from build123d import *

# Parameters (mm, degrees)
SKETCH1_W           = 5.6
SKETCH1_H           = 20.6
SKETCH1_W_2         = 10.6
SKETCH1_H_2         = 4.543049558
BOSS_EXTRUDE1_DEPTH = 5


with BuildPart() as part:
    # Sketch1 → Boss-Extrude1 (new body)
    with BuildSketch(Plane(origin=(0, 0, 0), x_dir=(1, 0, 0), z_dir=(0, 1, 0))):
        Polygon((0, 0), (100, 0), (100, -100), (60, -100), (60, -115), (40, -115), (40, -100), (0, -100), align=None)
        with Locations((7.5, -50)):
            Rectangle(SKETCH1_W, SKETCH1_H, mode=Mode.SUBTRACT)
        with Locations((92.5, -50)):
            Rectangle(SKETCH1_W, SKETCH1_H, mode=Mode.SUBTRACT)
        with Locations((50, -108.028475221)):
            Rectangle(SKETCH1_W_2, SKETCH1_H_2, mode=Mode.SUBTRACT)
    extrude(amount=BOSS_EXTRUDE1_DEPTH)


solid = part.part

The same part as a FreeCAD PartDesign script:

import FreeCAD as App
import Part
import Sketcher

V = App.Vector


def add_polygon(sketch, points):
    """Adds a closed chain of lines whose ends are joined by coincident constraints."""
    first, n = sketch.GeometryCount, len(points)
    for a, b in zip(points, points[1:] + points[:1]):
        sketch.addGeometry(Part.LineSegment(App.Vector(*a, 0), App.Vector(*b, 0)), False)
    for i in range(n):
        sketch.addConstraint(Sketcher.Constraint("Coincident", first + i, 2, first + (i + 1) % n, 1))

doc = App.newDocument("Part")
params = doc.addObject("Spreadsheet::Sheet", "Params")
for row, (alias, value) in enumerate([
    ("sketch1_width", "100 mm"),
    ("sketch1_width2", "40 mm"),
    ("sketch1_height", "15 mm"),
    ("sketch1_width3", "10.6 mm"),
    ("sketch1_width4", "5.6 mm"),
    ("pad1_length", "5 mm"),
], start=1):
    params.set(f"A{row}", alias)
    params.set(f"B{row}", "=" + value)
    params.setAlias(f"B{row}", alias)

body = doc.addObject("PartDesign::Body", "Body")

sketch1 = body.newObject("Sketcher::SketchObject", "Sketch")
sketch1.AttachmentSupport = (doc.getObject("XZ_Plane"), [""])
sketch1.MapMode = "FlatFace"
add_polygon(sketch1, [(100, 0), (0, 0), (0, 100), (40, 100), (40, 115), (60, 115), (60, 100), (100, 100)])
add_polygon(sketch1, [(44.7, 110.3), (44.7, 105.8), (55.3, 105.8), (55.3, 110.3)])
add_polygon(sketch1, [(89.7, 60.3), (89.7, 39.7), (95.3, 39.7), (95.3, 60.3)])
add_polygon(sketch1, [(4.7, 60.3), (4.7, 39.7), (10.3, 39.7), (10.3, 60.3)])
sketch1.addConstraint([
    Sketcher.Constraint("Horizontal", 0),
    Sketcher.Constraint("Vertical", 1),
    Sketcher.Constraint("Horizontal", 2),
    Sketcher.Constraint("Vertical", 3),
    Sketcher.Constraint("Horizontal", 4),
    Sketcher.Constraint("Vertical", 5),
    Sketcher.Constraint("Horizontal", 6),
    Sketcher.Constraint("Vertical", 7),
    Sketcher.Constraint("Vertical", 8),
    Sketcher.Constraint("Horizontal", 9),
    Sketcher.Constraint("Vertical", 10),
    Sketcher.Constraint("Horizontal", 11),
    Sketcher.Constraint("Vertical", 12),
    Sketcher.Constraint("Horizontal", 13),
    Sketcher.Constraint("Vertical", 14),
    Sketcher.Constraint("Horizontal", 15),
    Sketcher.Constraint("Vertical", 16),
    Sketcher.Constraint("Horizontal", 17),
    Sketcher.Constraint("Vertical", 18),
    Sketcher.Constraint("Horizontal", 19),
    Sketcher.Constraint("Coincident", 0, 2, -1, 1),
    Sketcher.Constraint("Horizontal", 2, 2, 5, 2),
    Sketcher.Constraint("Horizontal", 13, 2, 16, 2),
    Sketcher.Constraint("Horizontal", 15, 2, 18, 2),
    Sketcher.Constraint("Equal", 2, 6),
    Sketcher.Constraint("Equal", 15, 17),
    Sketcher.Constraint("Equal", 0, 1),
    Sketcher.Constraint("DistanceX", 0, 2, 0, 1, 100.0),
    Sketcher.Constraint("DistanceX", 2, 1, 2, 2, 40.0),
    Sketcher.Constraint("DistanceY", 3, 1, 3, 2, 15.0),
    Sketcher.Constraint("DistanceX", 9, 1, 9, 2, 10.6),
    Sketcher.Constraint("DistanceX", 13, 1, 13, 2, 5.6),
    Sketcher.Constraint("DistanceY", 12, 2, 12, 1, 20.6),
    Sketcher.Constraint("DistanceX", 9, 2, 13, 2, 40.0),
    Sketcher.Constraint("DistanceX", 16, 2, 8, 2, 40.0),
    Sketcher.Constraint("DistanceX", -1, 1, 8, 2, 44.7),
    Sketcher.Constraint("DistanceY", -1, 1, 10, 2, 110.3),
    Sketcher.Constraint("DistanceY", -1, 1, 12, 2, 39.7),
    Sketcher.Constraint("DistanceY", 8, 2, 8, 1, 4.54305),
])
sketch1.setExpression("Constraints[47]", "Params.sketch1_width")
sketch1.setExpression("Constraints[48]", "Params.sketch1_width2")
sketch1.setExpression("Constraints[49]", "Params.sketch1_height")
sketch1.setExpression("Constraints[50]", "Params.sketch1_width3")
sketch1.setExpression("Constraints[51]", "Params.sketch1_width4")
pad1 = body.newObject("PartDesign::Pad", "Pad")
pad1.Profile = sketch1
pad1.setExpression("Length", "Params.pad1_length")
pad1.Reversed = True

doc.recompute()
